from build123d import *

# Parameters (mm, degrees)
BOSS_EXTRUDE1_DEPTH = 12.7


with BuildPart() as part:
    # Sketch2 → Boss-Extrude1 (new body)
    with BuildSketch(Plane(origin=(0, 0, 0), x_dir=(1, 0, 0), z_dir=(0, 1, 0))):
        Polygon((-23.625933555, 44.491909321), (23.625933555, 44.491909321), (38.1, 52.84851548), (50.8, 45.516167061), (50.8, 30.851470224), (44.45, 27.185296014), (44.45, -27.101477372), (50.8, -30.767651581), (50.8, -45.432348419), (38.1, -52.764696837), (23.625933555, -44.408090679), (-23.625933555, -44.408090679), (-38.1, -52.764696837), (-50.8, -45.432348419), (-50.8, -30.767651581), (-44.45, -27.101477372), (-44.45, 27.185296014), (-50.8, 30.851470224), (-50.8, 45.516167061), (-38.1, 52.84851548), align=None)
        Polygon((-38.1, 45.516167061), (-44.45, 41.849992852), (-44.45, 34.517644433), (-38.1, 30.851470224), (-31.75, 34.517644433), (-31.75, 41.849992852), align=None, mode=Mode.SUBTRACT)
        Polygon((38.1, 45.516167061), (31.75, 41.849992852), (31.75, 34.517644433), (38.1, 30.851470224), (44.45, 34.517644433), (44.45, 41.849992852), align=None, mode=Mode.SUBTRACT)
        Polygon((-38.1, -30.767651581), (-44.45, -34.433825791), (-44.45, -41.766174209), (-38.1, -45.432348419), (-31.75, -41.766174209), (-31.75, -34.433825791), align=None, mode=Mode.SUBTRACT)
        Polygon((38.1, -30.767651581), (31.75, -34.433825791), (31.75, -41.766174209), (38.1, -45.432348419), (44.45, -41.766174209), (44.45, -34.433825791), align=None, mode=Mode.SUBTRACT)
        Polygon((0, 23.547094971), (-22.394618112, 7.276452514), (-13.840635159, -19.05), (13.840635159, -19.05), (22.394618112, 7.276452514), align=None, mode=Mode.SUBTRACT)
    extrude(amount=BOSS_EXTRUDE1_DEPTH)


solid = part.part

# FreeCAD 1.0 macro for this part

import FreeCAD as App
import Part
import Sketcher
Q = App.Units.Quantity


def add_polygon(sketch, points):
    """Adds a closed chain of lines whose ends are joined by coincident constraints."""
    first, n = sketch.GeometryCount, len(points)
    for a, b in zip(points, points[1:] + points[:1]):
        sketch.addGeometry(Part.LineSegment(App.Vector(*a, 0), App.Vector(*b, 0)), False)
    for i in range(n):
        sketch.addConstraint(Sketcher.Constraint("Coincident", first + i, 2, first + (i + 1) % n, 1))

doc = App.newDocument("Part")
params = doc.addObject("Spreadsheet::Sheet", "Params")
for row, (alias, value) in enumerate([
    ("pad1_length", "0.5 in"),
], start=1):
    params.set(f"A{row}", alias)
    params.set(f"B{row}", "=" + value)
    params.setAlias(f"B{row}", alias)

body = doc.addObject("PartDesign::Body", "Body")

sketch1 = doc.addObject("Sketcher::SketchObject", "Sketch")
body.addObject(sketch1)
sketch1.AttachmentSupport = (doc.XZ_Plane, [""])
sketch1.MapMode = "FlatFace"
add_polygon(sketch1, [(23.625934, -44.491909), (-23.625934, -44.491909), (-38.1, -52.848515), (-50.8, -45.516167), (-50.8, -30.85147), (-44.45, -27.185296), (-44.45, 27.101477), (-50.8, 30.767652), (-50.8, 45.432348), (-38.1, 52.764697), (-23.625934, 44.408091), (23.625934, 44.408091), (38.1, 52.764697), (50.8, 45.432348), (50.8, 30.767652), (44.45, 27.101477), (44.45, -27.185296), (50.8, -30.85147), (50.8, -45.516167), (38.1, -52.848515)])
add_polygon(sketch1, [(38.1, 30.767652), (44.45, 34.433826), (44.45, 41.766174), (38.1, 45.432348), (31.75, 41.766174), (31.75, 34.433826)])
add_polygon(sketch1, [(-38.1, 30.767652), (-31.75, 34.433826), (-31.75, 41.766174), (-38.1, 45.432348), (-44.45, 41.766174), (-44.45, 34.433826)])
add_polygon(sketch1, [(38.1, -45.516167), (44.45, -41.849993), (44.45, -34.517644), (38.1, -30.85147), (31.75, -34.517644), (31.75, -41.849993)])
add_polygon(sketch1, [(0, -23.547095), (22.394618, -7.276453), (13.840635, 19.05), (-13.840635, 19.05), (-22.394618, -7.276453)])
add_polygon(sketch1, [(-38.1, -45.516167), (-31.75, -41.849993), (-31.75, -34.517644), (-38.1, -30.85147), (-44.45, -34.517644), (-44.45, -41.849993)])
sketch1.addConstraint([
    Sketcher.Constraint("Horizontal", 0),
    Sketcher.Constraint("Vertical", 3),
    Sketcher.Constraint("Vertical", 5),
    Sketcher.Constraint("Vertical", 7),
    Sketcher.Constraint("Horizontal", 10),
    Sketcher.Constraint("Vertical", 13),
    Sketcher.Constraint("Vertical", 15),
    Sketcher.Constraint("Vertical", 17),
    Sketcher.Constraint("Vertical", 21),
    Sketcher.Constraint("Vertical", 24),
    Sketcher.Constraint("Vertical", 27),
    Sketcher.Constraint("Vertical", 30),
    Sketcher.Constraint("Vertical", 33),
    Sketcher.Constraint("Vertical", 36),
    Sketcher.Constraint("Horizontal", 40),
    Sketcher.Constraint("Vertical", 44),
    Sketcher.Constraint("Vertical", 47),
    Sketcher.Constraint("Symmetric", 8, 2, 11, 2, -2),
    Sketcher.Constraint("Symmetric", 7, 2, 12, 2, -2),
    Sketcher.Constraint("Symmetric", 5, 2, 14, 2, -2),
    Sketcher.Constraint("Symmetric", 3, 2, 16, 2, -2),
    Sketcher.Constraint("Symmetric", 1, 2, 18, 2, -2),
    Sketcher.Constraint("Symmetric", 24, 2, 26, 2, -2),
    Sketcher.Constraint("Symmetric", 22, 2, 28, 2, -2),
    Sketcher.Constraint("Symmetric", 21, 2, 29, 2, -2),
    Sketcher.Constraint("Symmetric", 25, 2, 31, 2, -2),
    Sketcher.Constraint("Symmetric", 38, 2, 41, 2, -2),
    Sketcher.Constraint("Symmetric", 36, 2, 43, 2, -2),
    Sketcher.Constraint("Symmetric", 34, 2, 45, 2, -2),
    Sketcher.Constraint("Symmetric", 33, 2, 46, 2, -2),
    Sketcher.Constraint("Symmetric", 37, 2, 48, 2, -2),
    Sketcher.Constraint("PointOnObject", 42, 2, -2),
    Sketcher.Constraint("Parallel", 1, 4),
    Sketcher.Constraint("Parallel", 2, 6),
    Sketcher.Constraint("Parallel", 4, 8),
    Sketcher.Constraint("Parallel", 6, 9),
    Sketcher.Constraint("Parallel", 8, 11),
    Sketcher.Constraint("Parallel", 9, 12),
    Sketcher.Constraint("Parallel", 11, 14),
    Sketcher.Constraint("Parallel", 12, 16),
    Sketcher.Constraint("Parallel", 14, 18),
    Sketcher.Constraint("Parallel", 16, 19),
    Sketcher.Constraint("Parallel", 18, 20),
    Sketcher.Constraint("Parallel", 19, 22),
    Sketcher.Constraint("Parallel", 20, 23),
    Sketcher.Constraint("Parallel", 22, 25),
    Sketcher.Constraint("Parallel", 25, 28),
    Sketcher.Constraint("Parallel", 28, 31),
    Sketcher.Constraint("Parallel", 29, 32),
    Sketcher.Constraint("Parallel", 31, 34),
    Sketcher.Constraint("Parallel", 32, 35),
    Sketcher.Constraint("Parallel", 34, 37),
    Sketcher.Constraint("Parallel", 37, 45),
    Sketcher.Constraint("Parallel", 45, 48),
    Sketcher.Constraint("Horizontal", 12, 2, 22, 2),
    Sketcher.Constraint("Horizontal", 21, 2, 23, 2),
    Sketcher.Constraint("Horizontal", 20, 2, 24, 2),
    Sketcher.Constraint("Horizontal", 13, 2, 25, 2),
    Sketcher.Constraint("Horizontal", 16, 2, 34, 2),
    Sketcher.Constraint("Horizontal", 33, 2, 35, 2),
    Sketcher.Constraint("Horizontal", 32, 2, 36, 2),
    Sketcher.Constraint("Horizontal", 17, 2, 37, 2),
    Sketcher.Constraint("Vertical", 3, 2, 6, 2),
    Sketcher.Constraint("Vertical", 1, 2, 8, 2),
    Sketcher.Constraint("Vertical", 0, 2, 9, 2),
    Sketcher.Constraint("Vertical", 15, 2, 20, 2),
    Sketcher.Constraint("Vertical", 18, 2, 22, 2),
    Sketcher.Constraint("Vertical", 21, 2, 32, 2),
    Sketcher.Constraint("Vertical", 25, 2, 34, 2),
    Sketcher.Constraint("Equal", 3, 7),
    Sketcher.Constraint("Equal", 16, 20),
    Sketcher.Constraint("Equal", 38, 39),
    Sketcher.Constraint("Equal", 39, 41),
    Sketcher.Constraint("DistanceX", 2, 2, -1, 1, Q("2 in")),
    Sketcher.Constraint("Angle", 1, Q("-150 deg")),
    Sketcher.Constraint("Angle", 38, Q("36 deg")),
    Sketcher.Constraint("Angle", 39, Q("108 deg")),
    Sketcher.Constraint("DistanceX", 8, 2, 11, 2, Q("3 in")),
    Sketcher.Constraint("DistanceY", -1, 1, 39, 2, Q("0.75 in")),
    Sketcher.Constraint("DistanceY", 2, 2, 6, 2, Q("3.0032999 in")),
    Sketcher.Constraint("DistanceX", 40, 2, 40, 1, Q("27.68127 mm")),
    Sketcher.Constraint("DistanceY", 21, 1, 21, 2, Q("7.332348 mm")),
    Sketcher.Constraint("DistanceX", 39, 2, 10, 2, Q("9.785298 mm")),
    Sketcher.Constraint("DistanceY", 0, 2, -1, 1, Q("44.491909 mm")),
])
pad1 = doc.addObject("PartDesign::Pad", "Pad")
body.addObject(pad1)
pad1.Profile = sketch1
pad1.setExpression("Length", "Params.pad1_length")
pad1.Reversed = True

doc.recompute()
